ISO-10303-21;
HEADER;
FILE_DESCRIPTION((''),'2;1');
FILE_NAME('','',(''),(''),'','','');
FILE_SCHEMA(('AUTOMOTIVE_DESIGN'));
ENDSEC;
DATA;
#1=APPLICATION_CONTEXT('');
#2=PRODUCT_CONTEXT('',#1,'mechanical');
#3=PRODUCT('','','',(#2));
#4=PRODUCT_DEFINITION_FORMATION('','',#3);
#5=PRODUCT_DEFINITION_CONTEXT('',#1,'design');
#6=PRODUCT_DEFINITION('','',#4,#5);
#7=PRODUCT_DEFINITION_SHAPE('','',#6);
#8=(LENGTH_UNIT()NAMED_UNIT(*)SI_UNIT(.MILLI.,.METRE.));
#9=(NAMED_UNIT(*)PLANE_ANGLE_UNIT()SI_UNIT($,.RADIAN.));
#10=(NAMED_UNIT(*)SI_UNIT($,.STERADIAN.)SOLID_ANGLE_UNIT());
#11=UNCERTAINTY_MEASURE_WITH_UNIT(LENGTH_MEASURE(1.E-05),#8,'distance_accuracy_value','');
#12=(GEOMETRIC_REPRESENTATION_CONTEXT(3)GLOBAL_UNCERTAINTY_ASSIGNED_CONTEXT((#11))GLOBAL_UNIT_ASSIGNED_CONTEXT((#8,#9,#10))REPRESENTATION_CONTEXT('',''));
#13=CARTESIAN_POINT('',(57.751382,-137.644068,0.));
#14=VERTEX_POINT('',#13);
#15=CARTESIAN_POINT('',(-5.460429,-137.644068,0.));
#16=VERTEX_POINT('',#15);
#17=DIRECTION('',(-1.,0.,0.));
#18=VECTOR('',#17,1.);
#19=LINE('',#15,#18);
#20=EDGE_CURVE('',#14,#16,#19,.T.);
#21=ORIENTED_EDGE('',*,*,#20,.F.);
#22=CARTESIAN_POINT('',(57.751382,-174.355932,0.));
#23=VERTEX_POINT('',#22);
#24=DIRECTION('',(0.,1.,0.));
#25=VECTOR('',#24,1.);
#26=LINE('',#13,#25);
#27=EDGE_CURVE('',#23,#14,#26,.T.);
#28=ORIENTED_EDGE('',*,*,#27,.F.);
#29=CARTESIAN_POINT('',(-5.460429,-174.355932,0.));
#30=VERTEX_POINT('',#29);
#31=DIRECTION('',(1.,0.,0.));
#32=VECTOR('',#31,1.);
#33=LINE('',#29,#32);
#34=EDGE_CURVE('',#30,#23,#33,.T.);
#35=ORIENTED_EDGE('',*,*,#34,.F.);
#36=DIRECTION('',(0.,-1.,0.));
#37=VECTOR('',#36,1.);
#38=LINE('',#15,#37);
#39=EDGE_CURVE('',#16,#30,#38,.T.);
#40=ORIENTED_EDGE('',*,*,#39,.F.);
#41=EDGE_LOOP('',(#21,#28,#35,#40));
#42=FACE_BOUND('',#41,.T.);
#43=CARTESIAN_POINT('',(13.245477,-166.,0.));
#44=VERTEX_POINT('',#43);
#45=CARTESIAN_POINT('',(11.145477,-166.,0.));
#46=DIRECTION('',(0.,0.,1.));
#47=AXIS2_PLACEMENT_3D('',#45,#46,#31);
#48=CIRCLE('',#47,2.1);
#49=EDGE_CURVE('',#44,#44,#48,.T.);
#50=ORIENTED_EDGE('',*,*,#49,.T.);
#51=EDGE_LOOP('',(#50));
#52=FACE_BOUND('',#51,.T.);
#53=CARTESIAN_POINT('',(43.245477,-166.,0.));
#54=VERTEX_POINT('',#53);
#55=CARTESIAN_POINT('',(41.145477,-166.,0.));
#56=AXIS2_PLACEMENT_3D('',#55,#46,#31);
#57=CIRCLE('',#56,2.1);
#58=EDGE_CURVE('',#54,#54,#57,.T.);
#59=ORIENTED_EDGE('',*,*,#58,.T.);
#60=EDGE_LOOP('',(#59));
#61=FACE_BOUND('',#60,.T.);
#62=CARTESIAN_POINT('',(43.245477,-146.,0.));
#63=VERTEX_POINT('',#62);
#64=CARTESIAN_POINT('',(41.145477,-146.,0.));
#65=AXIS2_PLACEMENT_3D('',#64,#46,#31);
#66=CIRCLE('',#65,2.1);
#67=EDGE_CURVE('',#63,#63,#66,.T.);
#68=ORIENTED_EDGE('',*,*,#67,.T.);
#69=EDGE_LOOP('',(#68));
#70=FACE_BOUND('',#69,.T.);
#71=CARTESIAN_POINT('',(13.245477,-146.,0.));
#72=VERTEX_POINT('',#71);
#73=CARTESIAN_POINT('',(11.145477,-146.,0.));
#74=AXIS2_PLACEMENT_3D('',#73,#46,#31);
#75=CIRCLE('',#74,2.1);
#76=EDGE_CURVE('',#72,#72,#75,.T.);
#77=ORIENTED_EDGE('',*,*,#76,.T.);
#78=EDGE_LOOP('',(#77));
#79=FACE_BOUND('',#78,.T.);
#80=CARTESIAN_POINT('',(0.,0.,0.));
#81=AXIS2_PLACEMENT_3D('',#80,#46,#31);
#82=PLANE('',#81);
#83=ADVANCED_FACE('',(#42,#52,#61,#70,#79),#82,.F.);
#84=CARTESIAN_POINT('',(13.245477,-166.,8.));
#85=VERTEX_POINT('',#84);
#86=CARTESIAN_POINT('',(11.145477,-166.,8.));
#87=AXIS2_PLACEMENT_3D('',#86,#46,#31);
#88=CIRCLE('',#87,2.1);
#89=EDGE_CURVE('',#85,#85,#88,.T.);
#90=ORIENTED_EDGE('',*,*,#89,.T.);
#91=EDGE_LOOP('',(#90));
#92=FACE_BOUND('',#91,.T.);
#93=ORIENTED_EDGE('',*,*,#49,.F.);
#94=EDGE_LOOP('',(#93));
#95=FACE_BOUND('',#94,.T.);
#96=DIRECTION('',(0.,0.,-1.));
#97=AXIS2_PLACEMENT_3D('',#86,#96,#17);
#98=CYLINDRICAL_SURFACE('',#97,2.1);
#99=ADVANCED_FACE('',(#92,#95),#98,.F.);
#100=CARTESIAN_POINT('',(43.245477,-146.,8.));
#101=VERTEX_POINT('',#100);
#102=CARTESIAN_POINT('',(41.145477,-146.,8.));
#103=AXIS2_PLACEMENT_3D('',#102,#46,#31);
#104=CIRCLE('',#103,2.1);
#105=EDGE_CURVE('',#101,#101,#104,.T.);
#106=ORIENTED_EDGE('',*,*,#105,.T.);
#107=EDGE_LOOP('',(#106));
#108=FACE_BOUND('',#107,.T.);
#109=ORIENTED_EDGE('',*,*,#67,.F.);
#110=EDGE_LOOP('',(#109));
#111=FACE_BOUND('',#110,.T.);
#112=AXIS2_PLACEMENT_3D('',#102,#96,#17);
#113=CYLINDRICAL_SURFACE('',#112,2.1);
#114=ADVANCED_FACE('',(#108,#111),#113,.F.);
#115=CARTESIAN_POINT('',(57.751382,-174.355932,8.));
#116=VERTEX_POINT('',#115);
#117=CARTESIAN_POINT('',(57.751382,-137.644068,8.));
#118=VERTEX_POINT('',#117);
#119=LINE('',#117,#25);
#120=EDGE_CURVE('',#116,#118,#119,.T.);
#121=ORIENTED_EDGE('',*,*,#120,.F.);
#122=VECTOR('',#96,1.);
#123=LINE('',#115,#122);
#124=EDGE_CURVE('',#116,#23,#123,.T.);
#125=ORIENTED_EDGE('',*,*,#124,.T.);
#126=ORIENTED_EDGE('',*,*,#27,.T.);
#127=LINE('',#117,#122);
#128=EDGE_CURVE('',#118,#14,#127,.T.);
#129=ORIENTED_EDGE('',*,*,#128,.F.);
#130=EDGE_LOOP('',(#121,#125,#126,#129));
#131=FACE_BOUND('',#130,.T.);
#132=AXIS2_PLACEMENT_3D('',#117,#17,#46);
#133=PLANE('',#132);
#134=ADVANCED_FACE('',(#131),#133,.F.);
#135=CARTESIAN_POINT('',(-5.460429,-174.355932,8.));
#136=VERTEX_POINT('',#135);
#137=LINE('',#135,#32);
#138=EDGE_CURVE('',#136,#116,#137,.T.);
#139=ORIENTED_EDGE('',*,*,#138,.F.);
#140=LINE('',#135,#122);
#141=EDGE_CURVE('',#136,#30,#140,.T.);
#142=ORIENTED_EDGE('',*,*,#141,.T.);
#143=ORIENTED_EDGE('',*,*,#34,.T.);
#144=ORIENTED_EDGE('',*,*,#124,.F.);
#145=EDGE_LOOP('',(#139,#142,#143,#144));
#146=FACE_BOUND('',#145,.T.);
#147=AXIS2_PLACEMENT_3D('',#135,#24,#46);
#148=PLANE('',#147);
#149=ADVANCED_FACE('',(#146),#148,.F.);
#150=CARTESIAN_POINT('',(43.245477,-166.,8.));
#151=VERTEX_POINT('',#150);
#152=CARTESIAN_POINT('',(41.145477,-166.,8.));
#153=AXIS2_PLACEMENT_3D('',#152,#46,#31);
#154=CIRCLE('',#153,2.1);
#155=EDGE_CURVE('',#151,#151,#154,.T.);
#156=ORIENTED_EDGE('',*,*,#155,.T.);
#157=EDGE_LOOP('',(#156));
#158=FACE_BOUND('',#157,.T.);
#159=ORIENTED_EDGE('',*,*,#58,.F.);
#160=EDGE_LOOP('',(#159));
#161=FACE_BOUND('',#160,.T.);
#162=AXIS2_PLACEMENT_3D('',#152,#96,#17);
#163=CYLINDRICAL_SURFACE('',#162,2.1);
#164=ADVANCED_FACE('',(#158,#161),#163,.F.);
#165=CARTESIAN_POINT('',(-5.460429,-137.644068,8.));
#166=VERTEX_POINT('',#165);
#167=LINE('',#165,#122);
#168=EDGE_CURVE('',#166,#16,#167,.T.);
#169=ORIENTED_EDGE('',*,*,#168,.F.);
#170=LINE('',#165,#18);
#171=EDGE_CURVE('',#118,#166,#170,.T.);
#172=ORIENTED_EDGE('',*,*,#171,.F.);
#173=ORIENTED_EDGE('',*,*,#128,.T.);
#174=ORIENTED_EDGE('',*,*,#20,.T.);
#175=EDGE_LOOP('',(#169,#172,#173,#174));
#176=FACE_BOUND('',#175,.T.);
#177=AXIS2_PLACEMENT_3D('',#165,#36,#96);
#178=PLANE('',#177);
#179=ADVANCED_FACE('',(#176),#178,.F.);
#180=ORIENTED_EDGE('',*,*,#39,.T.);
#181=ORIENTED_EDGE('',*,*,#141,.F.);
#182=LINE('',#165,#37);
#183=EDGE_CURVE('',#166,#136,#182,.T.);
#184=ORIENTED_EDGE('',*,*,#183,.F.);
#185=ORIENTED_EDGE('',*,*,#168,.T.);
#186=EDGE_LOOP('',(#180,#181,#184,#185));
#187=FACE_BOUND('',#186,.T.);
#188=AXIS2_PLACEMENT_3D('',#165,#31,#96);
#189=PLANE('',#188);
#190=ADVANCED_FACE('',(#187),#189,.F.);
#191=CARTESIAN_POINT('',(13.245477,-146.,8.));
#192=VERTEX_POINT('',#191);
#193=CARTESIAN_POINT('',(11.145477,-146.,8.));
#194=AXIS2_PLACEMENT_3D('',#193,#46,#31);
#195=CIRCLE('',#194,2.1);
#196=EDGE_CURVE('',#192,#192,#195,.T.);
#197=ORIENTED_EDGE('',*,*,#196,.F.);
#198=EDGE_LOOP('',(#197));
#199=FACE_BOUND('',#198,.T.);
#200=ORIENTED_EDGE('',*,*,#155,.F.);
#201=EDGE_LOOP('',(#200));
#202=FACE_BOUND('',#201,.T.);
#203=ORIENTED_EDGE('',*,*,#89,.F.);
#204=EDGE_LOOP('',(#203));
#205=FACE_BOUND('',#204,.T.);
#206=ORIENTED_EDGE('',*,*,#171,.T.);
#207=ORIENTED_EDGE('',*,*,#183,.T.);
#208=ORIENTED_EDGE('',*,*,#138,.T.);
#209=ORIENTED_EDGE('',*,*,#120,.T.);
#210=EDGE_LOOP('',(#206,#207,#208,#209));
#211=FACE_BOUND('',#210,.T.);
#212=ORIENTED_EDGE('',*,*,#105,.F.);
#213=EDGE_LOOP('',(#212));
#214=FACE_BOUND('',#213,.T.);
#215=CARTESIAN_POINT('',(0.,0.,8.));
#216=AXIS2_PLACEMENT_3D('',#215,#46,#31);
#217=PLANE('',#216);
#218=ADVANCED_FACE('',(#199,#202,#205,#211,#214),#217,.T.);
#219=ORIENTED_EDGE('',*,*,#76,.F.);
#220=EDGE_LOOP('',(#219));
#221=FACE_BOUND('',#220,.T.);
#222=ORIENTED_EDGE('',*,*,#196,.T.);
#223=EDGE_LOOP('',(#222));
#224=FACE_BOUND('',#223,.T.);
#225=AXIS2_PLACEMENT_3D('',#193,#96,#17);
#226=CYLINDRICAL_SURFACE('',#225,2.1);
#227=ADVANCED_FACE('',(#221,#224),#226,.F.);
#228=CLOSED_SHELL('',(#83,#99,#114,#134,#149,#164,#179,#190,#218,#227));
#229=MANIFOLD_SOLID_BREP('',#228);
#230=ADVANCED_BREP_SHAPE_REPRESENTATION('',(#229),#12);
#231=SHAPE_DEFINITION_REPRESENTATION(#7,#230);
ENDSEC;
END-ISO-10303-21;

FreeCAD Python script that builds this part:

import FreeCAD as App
import Part
import Sketcher

doc = App.newDocument("Part")
body = doc.addObject("PartDesign::Body", "Body")

# Sketch on XY plane
sketch1 = body.newObject("Sketcher::SketchObject", "Sketch")
sketch1.AttachmentSupport = (doc.getObject("XY_Plane"), [""])
sketch1.MapMode = "FlatFace"
sketch1.addGeometry(Part.LineSegment(App.Vector(-5.5, -137.6, 0), App.Vector(-5.5, -174.4, 0)), False)
sketch1.addGeometry(Part.LineSegment(App.Vector(-5.5, -174.4, 0), App.Vector(57.8, -174.4, 0)), False)
sketch1.addGeometry(Part.LineSegment(App.Vector(57.8, -174.4, 0), App.Vector(57.8, -137.6, 0)), False)
sketch1.addGeometry(Part.LineSegment(App.Vector(57.8, -137.6, 0), App.Vector(-5.5, -137.6, 0)), False)
sketch1.addGeometry(Part.Circle(App.Vector(11.1, -166, 0), App.Vector(0, 0, 1), 2.1), False)
sketch1.addGeometry(Part.Circle(App.Vector(41.1, -166, 0), App.Vector(0, 0, 1), 2.1), False)
sketch1.addGeometry(Part.Circle(App.Vector(11.1, -146, 0), App.Vector(0, 0, 1), 2.1), False)
sketch1.addGeometry(Part.Circle(App.Vector(41.1, -146, 0), App.Vector(0, 0, 1), 2.1), False)
sketch1.addConstraint(Sketcher.Constraint("Coincident", 0, 2, 1, 1))
sketch1.addConstraint(Sketcher.Constraint("Coincident", 1, 2, 2, 1))
sketch1.addConstraint(Sketcher.Constraint("Coincident", 2, 2, 3, 1))
sketch1.addConstraint(Sketcher.Constraint("Coincident", 3, 2, 0, 1))
sketch1.addConstraint(Sketcher.Constraint("Vertical", 0))
sketch1.addConstraint(Sketcher.Constraint("Horizontal", 1))
sketch1.addConstraint(Sketcher.Constraint("Vertical", 2))
sketch1.addConstraint(Sketcher.Constraint("Horizontal", 3))
sketch1.addConstraint(Sketcher.Constraint("Equal", 4, 5))
sketch1.addConstraint(Sketcher.Constraint("Equal", 5, 6))
sketch1.addConstraint(Sketcher.Constraint("Equal", 6, 7))
sketch1.addConstraint(Sketcher.Constraint("Horizontal", 4, 3, 5, 3))
sketch1.addConstraint(Sketcher.Constraint("Horizontal", 6, 3, 7, 3))
sketch1.addConstraint(Sketcher.Constraint("Vertical", 4, 3, 6, 3))
sketch1.addConstraint(Sketcher.Constraint("Vertical", 5, 3, 7, 3))
sketch1.addConstraint(Sketcher.Constraint("Diameter", 4, 4.2))
sketch1.addConstraint(Sketcher.Constraint("DistanceY", 4, 3, -1, 1, 166.0))
sketch1.addConstraint(Sketcher.Constraint("DistanceY", 6, 3, -1, 1, 146.0))
sketch1.addConstraint(Sketcher.Constraint("DistanceX", 4, 3, 5, 3, 30.0))
sketch1.addConstraint(Sketcher.Constraint("DistanceX", 1, 1, 1, 2, 63.211811))
sketch1.addConstraint(Sketcher.Constraint("DistanceY", 0, 2, 0, 1, 36.711863))
sketch1.addConstraint(Sketcher.Constraint("DistanceX", 0, 2, -1, 1, 5.460429))
sketch1.addConstraint(Sketcher.Constraint("DistanceY", 0, 2, -1, 1, 174.355932))
sketch1.addConstraint(Sketcher.Constraint("DistanceX", -1, 1, 4, 3, 11.145477))
pad1 = body.newObject("PartDesign::Pad", "Pad")
pad1.Profile = sketch1
pad1.Length = 8

doc.recompute()
